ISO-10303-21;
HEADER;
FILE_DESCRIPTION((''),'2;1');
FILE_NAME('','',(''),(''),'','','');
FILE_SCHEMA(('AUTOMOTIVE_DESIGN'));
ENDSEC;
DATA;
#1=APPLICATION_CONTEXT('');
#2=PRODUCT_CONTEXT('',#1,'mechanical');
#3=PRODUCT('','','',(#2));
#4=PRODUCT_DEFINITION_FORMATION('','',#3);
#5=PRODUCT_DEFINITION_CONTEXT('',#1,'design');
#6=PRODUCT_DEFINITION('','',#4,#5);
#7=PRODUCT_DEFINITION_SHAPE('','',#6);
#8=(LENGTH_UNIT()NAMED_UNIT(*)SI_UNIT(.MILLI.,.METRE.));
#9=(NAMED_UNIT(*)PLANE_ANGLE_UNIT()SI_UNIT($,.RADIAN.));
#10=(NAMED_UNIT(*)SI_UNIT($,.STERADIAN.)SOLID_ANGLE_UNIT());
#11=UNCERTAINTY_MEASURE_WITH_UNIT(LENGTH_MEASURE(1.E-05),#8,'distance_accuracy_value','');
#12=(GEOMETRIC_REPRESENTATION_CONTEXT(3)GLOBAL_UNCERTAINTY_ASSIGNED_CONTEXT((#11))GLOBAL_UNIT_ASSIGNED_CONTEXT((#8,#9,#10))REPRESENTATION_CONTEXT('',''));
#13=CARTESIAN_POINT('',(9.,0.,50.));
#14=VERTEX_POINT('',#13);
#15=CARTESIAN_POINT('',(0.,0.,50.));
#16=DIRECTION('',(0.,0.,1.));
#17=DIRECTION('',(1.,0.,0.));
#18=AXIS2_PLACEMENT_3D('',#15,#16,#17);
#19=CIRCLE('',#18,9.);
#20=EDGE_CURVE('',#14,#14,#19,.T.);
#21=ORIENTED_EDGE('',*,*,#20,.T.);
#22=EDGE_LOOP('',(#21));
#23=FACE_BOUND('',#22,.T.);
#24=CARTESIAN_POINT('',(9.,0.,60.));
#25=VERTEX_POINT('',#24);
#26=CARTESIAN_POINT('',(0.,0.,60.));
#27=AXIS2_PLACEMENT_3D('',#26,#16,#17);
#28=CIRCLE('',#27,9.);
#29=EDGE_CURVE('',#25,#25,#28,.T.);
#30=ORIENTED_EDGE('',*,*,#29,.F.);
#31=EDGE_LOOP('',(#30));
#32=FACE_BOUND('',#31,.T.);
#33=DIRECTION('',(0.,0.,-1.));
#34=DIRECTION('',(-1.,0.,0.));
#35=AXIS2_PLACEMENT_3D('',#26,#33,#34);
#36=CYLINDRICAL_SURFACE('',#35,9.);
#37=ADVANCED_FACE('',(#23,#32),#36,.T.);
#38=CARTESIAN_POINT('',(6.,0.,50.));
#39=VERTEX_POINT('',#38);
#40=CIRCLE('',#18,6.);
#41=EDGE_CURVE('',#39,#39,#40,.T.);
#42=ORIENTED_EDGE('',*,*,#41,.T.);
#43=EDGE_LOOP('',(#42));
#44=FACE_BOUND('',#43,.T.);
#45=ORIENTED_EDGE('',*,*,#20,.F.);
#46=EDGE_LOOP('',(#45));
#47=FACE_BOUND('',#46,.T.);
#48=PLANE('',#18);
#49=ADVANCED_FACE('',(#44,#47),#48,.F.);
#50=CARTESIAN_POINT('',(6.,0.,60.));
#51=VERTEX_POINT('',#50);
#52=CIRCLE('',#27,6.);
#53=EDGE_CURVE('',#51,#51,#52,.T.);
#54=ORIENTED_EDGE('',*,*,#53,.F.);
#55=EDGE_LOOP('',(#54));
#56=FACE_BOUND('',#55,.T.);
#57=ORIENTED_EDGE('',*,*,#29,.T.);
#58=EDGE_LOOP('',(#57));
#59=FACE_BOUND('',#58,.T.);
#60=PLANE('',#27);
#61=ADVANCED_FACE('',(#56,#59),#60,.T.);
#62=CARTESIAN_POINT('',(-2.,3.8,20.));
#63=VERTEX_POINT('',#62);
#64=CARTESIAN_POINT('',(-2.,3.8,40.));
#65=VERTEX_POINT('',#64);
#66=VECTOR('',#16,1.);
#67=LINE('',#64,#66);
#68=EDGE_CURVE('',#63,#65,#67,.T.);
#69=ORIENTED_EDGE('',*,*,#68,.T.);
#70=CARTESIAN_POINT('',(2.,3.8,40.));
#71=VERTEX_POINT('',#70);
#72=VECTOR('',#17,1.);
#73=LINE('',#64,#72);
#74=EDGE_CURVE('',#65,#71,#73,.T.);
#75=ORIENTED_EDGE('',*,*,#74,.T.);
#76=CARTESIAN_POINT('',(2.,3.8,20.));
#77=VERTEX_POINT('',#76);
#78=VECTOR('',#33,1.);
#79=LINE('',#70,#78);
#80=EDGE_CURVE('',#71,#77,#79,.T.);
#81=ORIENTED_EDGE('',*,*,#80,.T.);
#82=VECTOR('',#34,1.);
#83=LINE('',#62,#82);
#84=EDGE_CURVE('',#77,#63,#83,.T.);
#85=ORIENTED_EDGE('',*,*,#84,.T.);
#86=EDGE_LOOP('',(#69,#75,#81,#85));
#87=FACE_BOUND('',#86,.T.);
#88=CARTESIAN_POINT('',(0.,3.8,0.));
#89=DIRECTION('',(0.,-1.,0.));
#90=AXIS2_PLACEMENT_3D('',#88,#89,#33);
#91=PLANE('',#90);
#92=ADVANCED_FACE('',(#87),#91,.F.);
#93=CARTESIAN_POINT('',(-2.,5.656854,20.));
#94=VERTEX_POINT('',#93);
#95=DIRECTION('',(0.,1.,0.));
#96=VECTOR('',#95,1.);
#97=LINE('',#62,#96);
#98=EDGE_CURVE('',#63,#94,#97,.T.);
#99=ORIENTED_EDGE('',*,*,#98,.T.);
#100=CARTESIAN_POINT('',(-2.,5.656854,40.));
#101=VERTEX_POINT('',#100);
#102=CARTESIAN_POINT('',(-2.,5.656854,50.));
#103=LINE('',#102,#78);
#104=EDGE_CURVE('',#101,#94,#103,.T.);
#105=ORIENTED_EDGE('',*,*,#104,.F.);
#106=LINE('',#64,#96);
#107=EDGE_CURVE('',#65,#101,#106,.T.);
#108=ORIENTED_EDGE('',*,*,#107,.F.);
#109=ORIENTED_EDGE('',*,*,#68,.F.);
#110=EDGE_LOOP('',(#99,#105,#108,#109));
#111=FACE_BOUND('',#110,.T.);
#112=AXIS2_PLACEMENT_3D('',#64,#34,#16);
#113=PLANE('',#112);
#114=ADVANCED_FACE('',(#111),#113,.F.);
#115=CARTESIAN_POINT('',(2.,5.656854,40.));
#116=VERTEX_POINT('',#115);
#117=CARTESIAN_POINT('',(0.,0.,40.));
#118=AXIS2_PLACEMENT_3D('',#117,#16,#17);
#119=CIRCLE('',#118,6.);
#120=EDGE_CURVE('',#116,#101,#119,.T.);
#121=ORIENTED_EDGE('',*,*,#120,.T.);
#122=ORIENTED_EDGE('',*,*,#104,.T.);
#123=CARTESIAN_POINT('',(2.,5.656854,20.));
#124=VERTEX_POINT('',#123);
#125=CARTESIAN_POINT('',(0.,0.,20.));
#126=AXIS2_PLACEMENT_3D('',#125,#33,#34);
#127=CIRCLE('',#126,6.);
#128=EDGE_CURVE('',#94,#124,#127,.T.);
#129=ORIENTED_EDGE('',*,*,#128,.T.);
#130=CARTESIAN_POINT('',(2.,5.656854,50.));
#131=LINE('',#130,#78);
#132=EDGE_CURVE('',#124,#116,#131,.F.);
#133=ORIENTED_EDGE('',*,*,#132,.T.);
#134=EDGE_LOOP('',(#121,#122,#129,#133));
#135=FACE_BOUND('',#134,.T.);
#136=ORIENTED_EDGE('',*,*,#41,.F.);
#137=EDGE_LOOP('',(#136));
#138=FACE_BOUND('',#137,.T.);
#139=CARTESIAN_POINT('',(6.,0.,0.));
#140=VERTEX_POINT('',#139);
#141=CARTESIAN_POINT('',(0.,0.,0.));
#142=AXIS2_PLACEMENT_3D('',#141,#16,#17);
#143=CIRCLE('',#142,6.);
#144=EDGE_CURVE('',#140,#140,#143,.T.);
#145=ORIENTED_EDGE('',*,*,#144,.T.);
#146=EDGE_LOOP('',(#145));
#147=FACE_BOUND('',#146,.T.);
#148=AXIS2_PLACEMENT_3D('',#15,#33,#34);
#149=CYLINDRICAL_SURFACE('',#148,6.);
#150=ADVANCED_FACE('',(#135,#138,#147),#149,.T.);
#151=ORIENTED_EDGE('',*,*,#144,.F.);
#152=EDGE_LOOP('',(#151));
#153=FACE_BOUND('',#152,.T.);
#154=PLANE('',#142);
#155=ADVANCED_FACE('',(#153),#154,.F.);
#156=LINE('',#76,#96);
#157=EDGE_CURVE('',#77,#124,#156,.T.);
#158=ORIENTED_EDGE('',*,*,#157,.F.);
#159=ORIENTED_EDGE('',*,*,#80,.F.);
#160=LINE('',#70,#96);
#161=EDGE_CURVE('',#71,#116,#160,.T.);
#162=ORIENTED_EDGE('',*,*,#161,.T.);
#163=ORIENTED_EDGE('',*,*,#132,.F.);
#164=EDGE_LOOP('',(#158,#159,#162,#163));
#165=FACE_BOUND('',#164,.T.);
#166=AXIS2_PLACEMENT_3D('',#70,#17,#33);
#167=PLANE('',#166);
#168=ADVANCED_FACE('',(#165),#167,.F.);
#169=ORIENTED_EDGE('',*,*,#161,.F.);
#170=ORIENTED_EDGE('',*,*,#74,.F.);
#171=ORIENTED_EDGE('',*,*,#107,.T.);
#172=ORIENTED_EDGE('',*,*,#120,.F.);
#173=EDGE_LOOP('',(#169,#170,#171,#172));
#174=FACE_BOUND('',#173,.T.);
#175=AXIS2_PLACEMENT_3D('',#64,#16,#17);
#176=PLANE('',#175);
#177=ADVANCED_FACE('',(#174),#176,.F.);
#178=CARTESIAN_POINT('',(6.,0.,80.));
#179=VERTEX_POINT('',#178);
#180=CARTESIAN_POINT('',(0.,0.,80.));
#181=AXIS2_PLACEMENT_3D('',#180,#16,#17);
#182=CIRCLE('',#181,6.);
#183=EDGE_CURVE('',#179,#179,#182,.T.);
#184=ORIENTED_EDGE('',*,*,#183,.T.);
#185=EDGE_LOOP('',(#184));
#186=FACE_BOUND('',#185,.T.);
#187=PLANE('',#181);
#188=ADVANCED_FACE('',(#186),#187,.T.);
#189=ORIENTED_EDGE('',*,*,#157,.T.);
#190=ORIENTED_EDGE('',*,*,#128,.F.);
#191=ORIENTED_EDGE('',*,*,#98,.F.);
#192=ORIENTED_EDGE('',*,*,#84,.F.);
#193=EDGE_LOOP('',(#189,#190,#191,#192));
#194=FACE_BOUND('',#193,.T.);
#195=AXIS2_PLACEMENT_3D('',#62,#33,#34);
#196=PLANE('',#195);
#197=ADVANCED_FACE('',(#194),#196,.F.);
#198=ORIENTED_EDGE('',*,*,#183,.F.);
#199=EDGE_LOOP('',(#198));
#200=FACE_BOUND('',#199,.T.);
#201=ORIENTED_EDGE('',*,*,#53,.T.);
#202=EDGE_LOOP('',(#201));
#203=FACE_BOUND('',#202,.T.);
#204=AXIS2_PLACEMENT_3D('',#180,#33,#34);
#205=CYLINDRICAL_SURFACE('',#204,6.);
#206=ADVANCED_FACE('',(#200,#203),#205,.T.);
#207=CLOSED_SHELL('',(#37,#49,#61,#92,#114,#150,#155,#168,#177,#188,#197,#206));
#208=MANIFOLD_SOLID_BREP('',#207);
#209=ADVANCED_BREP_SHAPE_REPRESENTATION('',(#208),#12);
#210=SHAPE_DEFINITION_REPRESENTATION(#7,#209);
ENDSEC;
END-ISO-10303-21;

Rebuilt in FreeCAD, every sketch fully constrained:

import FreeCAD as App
import Part
import Sketcher

V = App.Vector
Q = App.Units.Quantity

doc = App.newDocument("Part")
params = doc.addObject("Spreadsheet::Sheet", "Params")
for row, (alias, value) in enumerate([
    ("sketch1_diameter", "12 mm"),
    ("pad1_length", "50 mm"),
    ("sketch2_diameter", "18 mm"),
    ("pad2_length", "10 mm"),
    ("sketch3_diameter", "12 mm"),
    ("pad3_length", "20 mm"),
    ("sketch4_width", "4 mm"),
    ("sketch4_height", "20 mm"),
    ("pocket1_length", "2.2 mm"),
], start=1):
    params.set(f"A{row}", alias)
    params.set(f"B{row}", "=" + value)
    params.setAlias(f"B{row}", alias)

body = doc.addObject("PartDesign::Body", "Body")

# Sketch on XY plane
sketch1 = body.newObject("Sketcher::SketchObject", "Sketch")
sketch1.AttachmentSupport = (doc.getObject("XY_Plane"), [""])
sketch1.MapMode = "FlatFace"
sketch1.addGeometry(Part.Circle(V(0, 0, 0), V(0, 0, 1), 6), False)
sketch1.addConstraint([
    Sketcher.Constraint("Coincident", 0, 3, -1, 1),
    Sketcher.Constraint("Diameter", 0, Q("12 mm")),
])
sketch1.setExpression("Constraints[1]", "Params.sketch1_diameter")
pad1 = body.newObject("PartDesign::Pad", "Pad")
pad1.Profile = sketch1
pad1.setExpression("Length", "Params.pad1_length")

# Sketch on XY plane
sketch2 = body.newObject("Sketcher::SketchObject", "Sketch001")
sketch2.AttachmentSupport = (doc.getObject("XY_Plane"), [""])
sketch2.MapMode = "FlatFace"
sketch2.AttachmentOffset = App.Placement(V(0, 0, 50), App.Rotation())
sketch2.addGeometry(Part.Circle(V(0, 0, 0), V(0, 0, 1), 9), False)
sketch2.addConstraint([
    Sketcher.Constraint("Coincident", 0, 3, -1, 1),
    Sketcher.Constraint("Diameter", 0, Q("18 mm")),
])
sketch2.setExpression("Constraints[1]", "Params.sketch2_diameter")
pad2 = body.newObject("PartDesign::Pad", "Pad001")
pad2.Profile = sketch2
pad2.setExpression("Length", "Params.pad2_length")

# Sketch on XY plane
sketch3 = body.newObject("Sketcher::SketchObject", "Sketch002")
sketch3.AttachmentSupport = (doc.getObject("XY_Plane"), [""])
sketch3.MapMode = "FlatFace"
sketch3.AttachmentOffset = App.Placement(V(0, 0, 60), App.Rotation())
sketch3.addGeometry(Part.Circle(V(0, 0, 0), V(0, 0, 1), 6), False)
sketch3.addConstraint([
    Sketcher.Constraint("Coincident", 0, 3, -1, 1),
    Sketcher.Constraint("Diameter", 0, Q("12 mm")),
])
sketch3.setExpression("Constraints[1]", "Params.sketch3_diameter")
pad3 = body.newObject("PartDesign::Pad", "Pad002")
pad3.Profile = sketch3
pad3.setExpression("Length", "Params.pad3_length")

# Sketch on XZ plane
sketch4 = body.newObject("Sketcher::SketchObject", "Sketch003")
sketch4.AttachmentSupport = (doc.getObject("XZ_Plane"), [""])
sketch4.MapMode = "FlatFace"
sketch4.AttachmentOffset = App.Placement(V(0, 0, -6), App.Rotation())
sketch4.addGeometry([
    Part.LineSegment(V(-2, 20, 0), V(-2, 40, 0)),
    Part.LineSegment(V(-2, 40, 0), V(2, 40, 0)),
    Part.LineSegment(V(2, 40, 0), V(2, 20, 0)),
    Part.LineSegment(V(2, 20, 0), V(-2, 20, 0)),
], False)
sketch4.addConstraint([
    Sketcher.Constraint("Coincident", 0, 2, 1, 1),
    Sketcher.Constraint("Coincident", 1, 2, 2, 1),
    Sketcher.Constraint("Coincident", 2, 2, 3, 1),
    Sketcher.Constraint("Coincident", 3, 2, 0, 1),
    Sketcher.Constraint("Vertical", 0),
    Sketcher.Constraint("Horizontal", 1),
    Sketcher.Constraint("Vertical", 2),
    Sketcher.Constraint("Horizontal", 3),
    Sketcher.Constraint("DistanceX", 1, 1, 1, 2, Q("4 mm")),
    Sketcher.Constraint("DistanceY", 0, 1, 0, 2, Q("20 mm")),
    Sketcher.Constraint("DistanceX", 0, 2, -1, 1, Q("2 mm")),
    Sketcher.Constraint("DistanceY", -1, 1, 0, 2, Q("40 mm")),
])
sketch4.setExpression("Constraints[8]", "Params.sketch4_width")
sketch4.setExpression("Constraints[9]", "Params.sketch4_height")
pocket1 = body.newObject("PartDesign::Pocket", "Pocket")
pocket1.Profile = sketch4
pocket1.setExpression("Length", "Params.pocket1_length")
pocket1.Reversed = True

doc.recompute()
